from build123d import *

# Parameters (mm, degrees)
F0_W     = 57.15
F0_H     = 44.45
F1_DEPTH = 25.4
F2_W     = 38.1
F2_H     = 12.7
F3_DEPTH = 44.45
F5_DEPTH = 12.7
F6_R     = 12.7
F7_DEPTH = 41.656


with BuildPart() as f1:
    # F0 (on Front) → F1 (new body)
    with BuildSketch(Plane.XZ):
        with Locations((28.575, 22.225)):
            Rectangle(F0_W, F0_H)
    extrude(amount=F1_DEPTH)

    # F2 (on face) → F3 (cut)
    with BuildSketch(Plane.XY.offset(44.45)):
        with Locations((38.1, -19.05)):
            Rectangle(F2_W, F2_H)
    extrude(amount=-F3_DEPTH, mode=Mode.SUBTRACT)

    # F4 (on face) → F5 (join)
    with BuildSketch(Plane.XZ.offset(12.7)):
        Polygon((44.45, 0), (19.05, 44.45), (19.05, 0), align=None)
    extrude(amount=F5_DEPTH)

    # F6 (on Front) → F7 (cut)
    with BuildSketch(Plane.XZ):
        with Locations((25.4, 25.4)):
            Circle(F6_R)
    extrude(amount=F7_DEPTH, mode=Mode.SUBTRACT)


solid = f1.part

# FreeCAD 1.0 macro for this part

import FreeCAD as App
import Part
import Sketcher
Q = App.Units.Quantity

doc = App.newDocument("Part")
params = doc.addObject("Spreadsheet::Sheet", "Params")
for row, (alias, value) in enumerate([
    ("sketch1_width", "2.25 in"),
    ("sketch1_height", "1.75 in"),
    ("pad1_length", "1 in"),
    ("sketch2_width", "1.5 in"),
    ("sketch2_height", "0.5 in"),
    ("pocket1_length", "1.75 in"),
    ("sketch3_width", "1 in"),
    ("sketch3_height", "1.75 in"),
    ("pad2_length", "0.5 in"),
    ("sketch4_diameter", "1 in"),
    ("pocket2_length", "1.64 in"),
], start=1):
    params.set(f"A{row}", alias)
    params.set(f"B{row}", "=" + value)
    params.setAlias(f"B{row}", alias)

body = doc.addObject("PartDesign::Body", "Body")

# Sketch on XZ plane
sketch1 = body.newObject("Sketcher::SketchObject", "Sketch")
sketch1.AttachmentSupport = (doc.getObject("XZ_Plane"), [""])
sketch1.MapMode = "FlatFace"
sketch1.addGeometry(Part.LineSegment(App.Vector(0, 44.45, 0), App.Vector(0, 0, 0)), False)
sketch1.addGeometry(Part.LineSegment(App.Vector(0, 0, 0), App.Vector(57.15, 0, 0)), False)
sketch1.addGeometry(Part.LineSegment(App.Vector(57.15, 0, 0), App.Vector(57.15, 44.45, 0)), False)
sketch1.addGeometry(Part.LineSegment(App.Vector(57.15, 44.45, 0), App.Vector(0, 44.45, 0)), False)
sketch1.addConstraint(Sketcher.Constraint("Coincident", 0, 2, 1, 1))
sketch1.addConstraint(Sketcher.Constraint("Coincident", 1, 2, 2, 1))
sketch1.addConstraint(Sketcher.Constraint("Coincident", 2, 2, 3, 1))
sketch1.addConstraint(Sketcher.Constraint("Coincident", 3, 2, 0, 1))
sketch1.addConstraint(Sketcher.Constraint("Vertical", 0))
sketch1.addConstraint(Sketcher.Constraint("Horizontal", 1))
sketch1.addConstraint(Sketcher.Constraint("Vertical", 2))
sketch1.addConstraint(Sketcher.Constraint("Horizontal", 3))
sketch1.addConstraint(Sketcher.Constraint("Coincident", 0, 2, -1, 1))
sketch1.addConstraint(Sketcher.Constraint("DistanceX", 1, 1, 1, 2, Q("2.25 in")))
sketch1.addConstraint(Sketcher.Constraint("DistanceY", 0, 2, 0, 1, Q("1.75 in")))
sketch1.setExpression("Constraints[9]", "Params.sketch1_width")
sketch1.setExpression("Constraints[10]", "Params.sketch1_height")
pad1 = body.newObject("PartDesign::Pad", "Pad")
pad1.Profile = sketch1
pad1.setExpression("Length", "Params.pad1_length")

# Sketch on XY plane
sketch2 = body.newObject("Sketcher::SketchObject", "Sketch001")
sketch2.AttachmentSupport = (doc.getObject("XY_Plane"), [""])
sketch2.MapMode = "FlatFace"
sketch2.AttachmentOffset = App.Placement(App.Vector(0, 0, 1.75 * 25.4), App.Rotation())
sketch2.addGeometry(Part.LineSegment(App.Vector(19.05, -12.7, 0), App.Vector(19.05, -25.4, 0)), False)
sketch2.addGeometry(Part.LineSegment(App.Vector(19.05, -25.4, 0), App.Vector(57.15, -25.4, 0)), False)
sketch2.addGeometry(Part.LineSegment(App.Vector(57.15, -25.4, 0), App.Vector(57.15, -12.7, 0)), False)
sketch2.addGeometry(Part.LineSegment(App.Vector(57.15, -12.7, 0), App.Vector(19.05, -12.7, 0)), False)
sketch2.addConstraint(Sketcher.Constraint("Coincident", 0, 2, 1, 1))
sketch2.addConstraint(Sketcher.Constraint("Coincident", 1, 2, 2, 1))
sketch2.addConstraint(Sketcher.Constraint("Coincident", 2, 2, 3, 1))
sketch2.addConstraint(Sketcher.Constraint("Coincident", 3, 2, 0, 1))
sketch2.addConstraint(Sketcher.Constraint("Vertical", 0))
sketch2.addConstraint(Sketcher.Constraint("Horizontal", 1))
sketch2.addConstraint(Sketcher.Constraint("Vertical", 2))
sketch2.addConstraint(Sketcher.Constraint("Horizontal", 3))
sketch2.addConstraint(Sketcher.Constraint("DistanceX", 1, 1, 1, 2, Q("1.5 in")))
sketch2.addConstraint(Sketcher.Constraint("DistanceY", 0, 2, 0, 1, Q("0.5 in")))
sketch2.addConstraint(Sketcher.Constraint("DistanceY", 0, 2, -1, 1, Q("1 in")))
sketch2.addConstraint(Sketcher.Constraint("DistanceX", -1, 1, 0, 2, Q("0.75 in")))
sketch2.setExpression("Constraints[8]", "Params.sketch2_width")
sketch2.setExpression("Constraints[9]", "Params.sketch2_height")
pocket1 = body.newObject("PartDesign::Pocket", "Pocket")
pocket1.Profile = sketch2
pocket1.setExpression("Length", "Params.pocket1_length")

# Sketch on XZ plane
sketch3 = body.newObject("Sketcher::SketchObject", "Sketch002")
sketch3.AttachmentSupport = (doc.getObject("XZ_Plane"), [""])
sketch3.MapMode = "FlatFace"
sketch3.AttachmentOffset = App.Placement(App.Vector(0, 0, 0.5 * 25.4), App.Rotation())
sketch3.addGeometry(Part.LineSegment(App.Vector(44.45, 0, 0), App.Vector(19.05, 44.45, 0)), False)
sketch3.addGeometry(Part.LineSegment(App.Vector(19.05, 44.45, 0), App.Vector(19.05, 0, 0)), False)
sketch3.addGeometry(Part.LineSegment(App.Vector(19.05, 0, 0), App.Vector(44.45, 0, 0)), False)
sketch3.addConstraint(Sketcher.Constraint("Coincident", 0, 2, 1, 1))
sketch3.addConstraint(Sketcher.Constraint("Coincident", 1, 2, 2, 1))
sketch3.addConstraint(Sketcher.Constraint("Coincident", 2, 2, 0, 1))
sketch3.addConstraint(Sketcher.Constraint("Vertical", 1))
sketch3.addConstraint(Sketcher.Constraint("Horizontal", 2))
sketch3.addConstraint(Sketcher.Constraint("PointOnObject", 1, 2, -1))
sketch3.addConstraint(Sketcher.Constraint("DistanceX", 2, 1, 2, 2, Q("1 in")))
sketch3.addConstraint(Sketcher.Constraint("DistanceY", 1, 2, 1, 1, Q("1.75 in")))
sketch3.addConstraint(Sketcher.Constraint("DistanceX", -1, 1, 0, 2, Q("0.75 in")))
sketch3.setExpression("Constraints[6]", "Params.sketch3_width")
sketch3.setExpression("Constraints[7]", "Params.sketch3_height")
pad2 = body.newObject("PartDesign::Pad", "Pad001")
pad2.Profile = sketch3
pad2.setExpression("Length", "Params.pad2_length")

# Sketch on XZ plane
sketch4 = body.newObject("Sketcher::SketchObject", "Sketch003")
sketch4.AttachmentSupport = (doc.getObject("XZ_Plane"), [""])
sketch4.MapMode = "FlatFace"
sketch4.addGeometry(Part.Circle(App.Vector(25.4, 25.4, 0), App.Vector(0, 0, 1), 12.7), False)
sketch4.addConstraint(Sketcher.Constraint("Diameter", 0, Q("1 in")))
sketch4.addConstraint(Sketcher.Constraint("DistanceX", -1, 1, 0, 3, Q("1 in")))
sketch4.addConstraint(Sketcher.Constraint("DistanceY", -1, 1, 0, 3, Q("1 in")))
sketch4.setExpression("Constraints[0]", "Params.sketch4_diameter")
pocket2 = body.newObject("PartDesign::Pocket", "Pocket001")
pocket2.Profile = sketch4
pocket2.setExpression("Length", "Params.pocket2_length")
pocket2.Reversed = True

doc.recompute()
